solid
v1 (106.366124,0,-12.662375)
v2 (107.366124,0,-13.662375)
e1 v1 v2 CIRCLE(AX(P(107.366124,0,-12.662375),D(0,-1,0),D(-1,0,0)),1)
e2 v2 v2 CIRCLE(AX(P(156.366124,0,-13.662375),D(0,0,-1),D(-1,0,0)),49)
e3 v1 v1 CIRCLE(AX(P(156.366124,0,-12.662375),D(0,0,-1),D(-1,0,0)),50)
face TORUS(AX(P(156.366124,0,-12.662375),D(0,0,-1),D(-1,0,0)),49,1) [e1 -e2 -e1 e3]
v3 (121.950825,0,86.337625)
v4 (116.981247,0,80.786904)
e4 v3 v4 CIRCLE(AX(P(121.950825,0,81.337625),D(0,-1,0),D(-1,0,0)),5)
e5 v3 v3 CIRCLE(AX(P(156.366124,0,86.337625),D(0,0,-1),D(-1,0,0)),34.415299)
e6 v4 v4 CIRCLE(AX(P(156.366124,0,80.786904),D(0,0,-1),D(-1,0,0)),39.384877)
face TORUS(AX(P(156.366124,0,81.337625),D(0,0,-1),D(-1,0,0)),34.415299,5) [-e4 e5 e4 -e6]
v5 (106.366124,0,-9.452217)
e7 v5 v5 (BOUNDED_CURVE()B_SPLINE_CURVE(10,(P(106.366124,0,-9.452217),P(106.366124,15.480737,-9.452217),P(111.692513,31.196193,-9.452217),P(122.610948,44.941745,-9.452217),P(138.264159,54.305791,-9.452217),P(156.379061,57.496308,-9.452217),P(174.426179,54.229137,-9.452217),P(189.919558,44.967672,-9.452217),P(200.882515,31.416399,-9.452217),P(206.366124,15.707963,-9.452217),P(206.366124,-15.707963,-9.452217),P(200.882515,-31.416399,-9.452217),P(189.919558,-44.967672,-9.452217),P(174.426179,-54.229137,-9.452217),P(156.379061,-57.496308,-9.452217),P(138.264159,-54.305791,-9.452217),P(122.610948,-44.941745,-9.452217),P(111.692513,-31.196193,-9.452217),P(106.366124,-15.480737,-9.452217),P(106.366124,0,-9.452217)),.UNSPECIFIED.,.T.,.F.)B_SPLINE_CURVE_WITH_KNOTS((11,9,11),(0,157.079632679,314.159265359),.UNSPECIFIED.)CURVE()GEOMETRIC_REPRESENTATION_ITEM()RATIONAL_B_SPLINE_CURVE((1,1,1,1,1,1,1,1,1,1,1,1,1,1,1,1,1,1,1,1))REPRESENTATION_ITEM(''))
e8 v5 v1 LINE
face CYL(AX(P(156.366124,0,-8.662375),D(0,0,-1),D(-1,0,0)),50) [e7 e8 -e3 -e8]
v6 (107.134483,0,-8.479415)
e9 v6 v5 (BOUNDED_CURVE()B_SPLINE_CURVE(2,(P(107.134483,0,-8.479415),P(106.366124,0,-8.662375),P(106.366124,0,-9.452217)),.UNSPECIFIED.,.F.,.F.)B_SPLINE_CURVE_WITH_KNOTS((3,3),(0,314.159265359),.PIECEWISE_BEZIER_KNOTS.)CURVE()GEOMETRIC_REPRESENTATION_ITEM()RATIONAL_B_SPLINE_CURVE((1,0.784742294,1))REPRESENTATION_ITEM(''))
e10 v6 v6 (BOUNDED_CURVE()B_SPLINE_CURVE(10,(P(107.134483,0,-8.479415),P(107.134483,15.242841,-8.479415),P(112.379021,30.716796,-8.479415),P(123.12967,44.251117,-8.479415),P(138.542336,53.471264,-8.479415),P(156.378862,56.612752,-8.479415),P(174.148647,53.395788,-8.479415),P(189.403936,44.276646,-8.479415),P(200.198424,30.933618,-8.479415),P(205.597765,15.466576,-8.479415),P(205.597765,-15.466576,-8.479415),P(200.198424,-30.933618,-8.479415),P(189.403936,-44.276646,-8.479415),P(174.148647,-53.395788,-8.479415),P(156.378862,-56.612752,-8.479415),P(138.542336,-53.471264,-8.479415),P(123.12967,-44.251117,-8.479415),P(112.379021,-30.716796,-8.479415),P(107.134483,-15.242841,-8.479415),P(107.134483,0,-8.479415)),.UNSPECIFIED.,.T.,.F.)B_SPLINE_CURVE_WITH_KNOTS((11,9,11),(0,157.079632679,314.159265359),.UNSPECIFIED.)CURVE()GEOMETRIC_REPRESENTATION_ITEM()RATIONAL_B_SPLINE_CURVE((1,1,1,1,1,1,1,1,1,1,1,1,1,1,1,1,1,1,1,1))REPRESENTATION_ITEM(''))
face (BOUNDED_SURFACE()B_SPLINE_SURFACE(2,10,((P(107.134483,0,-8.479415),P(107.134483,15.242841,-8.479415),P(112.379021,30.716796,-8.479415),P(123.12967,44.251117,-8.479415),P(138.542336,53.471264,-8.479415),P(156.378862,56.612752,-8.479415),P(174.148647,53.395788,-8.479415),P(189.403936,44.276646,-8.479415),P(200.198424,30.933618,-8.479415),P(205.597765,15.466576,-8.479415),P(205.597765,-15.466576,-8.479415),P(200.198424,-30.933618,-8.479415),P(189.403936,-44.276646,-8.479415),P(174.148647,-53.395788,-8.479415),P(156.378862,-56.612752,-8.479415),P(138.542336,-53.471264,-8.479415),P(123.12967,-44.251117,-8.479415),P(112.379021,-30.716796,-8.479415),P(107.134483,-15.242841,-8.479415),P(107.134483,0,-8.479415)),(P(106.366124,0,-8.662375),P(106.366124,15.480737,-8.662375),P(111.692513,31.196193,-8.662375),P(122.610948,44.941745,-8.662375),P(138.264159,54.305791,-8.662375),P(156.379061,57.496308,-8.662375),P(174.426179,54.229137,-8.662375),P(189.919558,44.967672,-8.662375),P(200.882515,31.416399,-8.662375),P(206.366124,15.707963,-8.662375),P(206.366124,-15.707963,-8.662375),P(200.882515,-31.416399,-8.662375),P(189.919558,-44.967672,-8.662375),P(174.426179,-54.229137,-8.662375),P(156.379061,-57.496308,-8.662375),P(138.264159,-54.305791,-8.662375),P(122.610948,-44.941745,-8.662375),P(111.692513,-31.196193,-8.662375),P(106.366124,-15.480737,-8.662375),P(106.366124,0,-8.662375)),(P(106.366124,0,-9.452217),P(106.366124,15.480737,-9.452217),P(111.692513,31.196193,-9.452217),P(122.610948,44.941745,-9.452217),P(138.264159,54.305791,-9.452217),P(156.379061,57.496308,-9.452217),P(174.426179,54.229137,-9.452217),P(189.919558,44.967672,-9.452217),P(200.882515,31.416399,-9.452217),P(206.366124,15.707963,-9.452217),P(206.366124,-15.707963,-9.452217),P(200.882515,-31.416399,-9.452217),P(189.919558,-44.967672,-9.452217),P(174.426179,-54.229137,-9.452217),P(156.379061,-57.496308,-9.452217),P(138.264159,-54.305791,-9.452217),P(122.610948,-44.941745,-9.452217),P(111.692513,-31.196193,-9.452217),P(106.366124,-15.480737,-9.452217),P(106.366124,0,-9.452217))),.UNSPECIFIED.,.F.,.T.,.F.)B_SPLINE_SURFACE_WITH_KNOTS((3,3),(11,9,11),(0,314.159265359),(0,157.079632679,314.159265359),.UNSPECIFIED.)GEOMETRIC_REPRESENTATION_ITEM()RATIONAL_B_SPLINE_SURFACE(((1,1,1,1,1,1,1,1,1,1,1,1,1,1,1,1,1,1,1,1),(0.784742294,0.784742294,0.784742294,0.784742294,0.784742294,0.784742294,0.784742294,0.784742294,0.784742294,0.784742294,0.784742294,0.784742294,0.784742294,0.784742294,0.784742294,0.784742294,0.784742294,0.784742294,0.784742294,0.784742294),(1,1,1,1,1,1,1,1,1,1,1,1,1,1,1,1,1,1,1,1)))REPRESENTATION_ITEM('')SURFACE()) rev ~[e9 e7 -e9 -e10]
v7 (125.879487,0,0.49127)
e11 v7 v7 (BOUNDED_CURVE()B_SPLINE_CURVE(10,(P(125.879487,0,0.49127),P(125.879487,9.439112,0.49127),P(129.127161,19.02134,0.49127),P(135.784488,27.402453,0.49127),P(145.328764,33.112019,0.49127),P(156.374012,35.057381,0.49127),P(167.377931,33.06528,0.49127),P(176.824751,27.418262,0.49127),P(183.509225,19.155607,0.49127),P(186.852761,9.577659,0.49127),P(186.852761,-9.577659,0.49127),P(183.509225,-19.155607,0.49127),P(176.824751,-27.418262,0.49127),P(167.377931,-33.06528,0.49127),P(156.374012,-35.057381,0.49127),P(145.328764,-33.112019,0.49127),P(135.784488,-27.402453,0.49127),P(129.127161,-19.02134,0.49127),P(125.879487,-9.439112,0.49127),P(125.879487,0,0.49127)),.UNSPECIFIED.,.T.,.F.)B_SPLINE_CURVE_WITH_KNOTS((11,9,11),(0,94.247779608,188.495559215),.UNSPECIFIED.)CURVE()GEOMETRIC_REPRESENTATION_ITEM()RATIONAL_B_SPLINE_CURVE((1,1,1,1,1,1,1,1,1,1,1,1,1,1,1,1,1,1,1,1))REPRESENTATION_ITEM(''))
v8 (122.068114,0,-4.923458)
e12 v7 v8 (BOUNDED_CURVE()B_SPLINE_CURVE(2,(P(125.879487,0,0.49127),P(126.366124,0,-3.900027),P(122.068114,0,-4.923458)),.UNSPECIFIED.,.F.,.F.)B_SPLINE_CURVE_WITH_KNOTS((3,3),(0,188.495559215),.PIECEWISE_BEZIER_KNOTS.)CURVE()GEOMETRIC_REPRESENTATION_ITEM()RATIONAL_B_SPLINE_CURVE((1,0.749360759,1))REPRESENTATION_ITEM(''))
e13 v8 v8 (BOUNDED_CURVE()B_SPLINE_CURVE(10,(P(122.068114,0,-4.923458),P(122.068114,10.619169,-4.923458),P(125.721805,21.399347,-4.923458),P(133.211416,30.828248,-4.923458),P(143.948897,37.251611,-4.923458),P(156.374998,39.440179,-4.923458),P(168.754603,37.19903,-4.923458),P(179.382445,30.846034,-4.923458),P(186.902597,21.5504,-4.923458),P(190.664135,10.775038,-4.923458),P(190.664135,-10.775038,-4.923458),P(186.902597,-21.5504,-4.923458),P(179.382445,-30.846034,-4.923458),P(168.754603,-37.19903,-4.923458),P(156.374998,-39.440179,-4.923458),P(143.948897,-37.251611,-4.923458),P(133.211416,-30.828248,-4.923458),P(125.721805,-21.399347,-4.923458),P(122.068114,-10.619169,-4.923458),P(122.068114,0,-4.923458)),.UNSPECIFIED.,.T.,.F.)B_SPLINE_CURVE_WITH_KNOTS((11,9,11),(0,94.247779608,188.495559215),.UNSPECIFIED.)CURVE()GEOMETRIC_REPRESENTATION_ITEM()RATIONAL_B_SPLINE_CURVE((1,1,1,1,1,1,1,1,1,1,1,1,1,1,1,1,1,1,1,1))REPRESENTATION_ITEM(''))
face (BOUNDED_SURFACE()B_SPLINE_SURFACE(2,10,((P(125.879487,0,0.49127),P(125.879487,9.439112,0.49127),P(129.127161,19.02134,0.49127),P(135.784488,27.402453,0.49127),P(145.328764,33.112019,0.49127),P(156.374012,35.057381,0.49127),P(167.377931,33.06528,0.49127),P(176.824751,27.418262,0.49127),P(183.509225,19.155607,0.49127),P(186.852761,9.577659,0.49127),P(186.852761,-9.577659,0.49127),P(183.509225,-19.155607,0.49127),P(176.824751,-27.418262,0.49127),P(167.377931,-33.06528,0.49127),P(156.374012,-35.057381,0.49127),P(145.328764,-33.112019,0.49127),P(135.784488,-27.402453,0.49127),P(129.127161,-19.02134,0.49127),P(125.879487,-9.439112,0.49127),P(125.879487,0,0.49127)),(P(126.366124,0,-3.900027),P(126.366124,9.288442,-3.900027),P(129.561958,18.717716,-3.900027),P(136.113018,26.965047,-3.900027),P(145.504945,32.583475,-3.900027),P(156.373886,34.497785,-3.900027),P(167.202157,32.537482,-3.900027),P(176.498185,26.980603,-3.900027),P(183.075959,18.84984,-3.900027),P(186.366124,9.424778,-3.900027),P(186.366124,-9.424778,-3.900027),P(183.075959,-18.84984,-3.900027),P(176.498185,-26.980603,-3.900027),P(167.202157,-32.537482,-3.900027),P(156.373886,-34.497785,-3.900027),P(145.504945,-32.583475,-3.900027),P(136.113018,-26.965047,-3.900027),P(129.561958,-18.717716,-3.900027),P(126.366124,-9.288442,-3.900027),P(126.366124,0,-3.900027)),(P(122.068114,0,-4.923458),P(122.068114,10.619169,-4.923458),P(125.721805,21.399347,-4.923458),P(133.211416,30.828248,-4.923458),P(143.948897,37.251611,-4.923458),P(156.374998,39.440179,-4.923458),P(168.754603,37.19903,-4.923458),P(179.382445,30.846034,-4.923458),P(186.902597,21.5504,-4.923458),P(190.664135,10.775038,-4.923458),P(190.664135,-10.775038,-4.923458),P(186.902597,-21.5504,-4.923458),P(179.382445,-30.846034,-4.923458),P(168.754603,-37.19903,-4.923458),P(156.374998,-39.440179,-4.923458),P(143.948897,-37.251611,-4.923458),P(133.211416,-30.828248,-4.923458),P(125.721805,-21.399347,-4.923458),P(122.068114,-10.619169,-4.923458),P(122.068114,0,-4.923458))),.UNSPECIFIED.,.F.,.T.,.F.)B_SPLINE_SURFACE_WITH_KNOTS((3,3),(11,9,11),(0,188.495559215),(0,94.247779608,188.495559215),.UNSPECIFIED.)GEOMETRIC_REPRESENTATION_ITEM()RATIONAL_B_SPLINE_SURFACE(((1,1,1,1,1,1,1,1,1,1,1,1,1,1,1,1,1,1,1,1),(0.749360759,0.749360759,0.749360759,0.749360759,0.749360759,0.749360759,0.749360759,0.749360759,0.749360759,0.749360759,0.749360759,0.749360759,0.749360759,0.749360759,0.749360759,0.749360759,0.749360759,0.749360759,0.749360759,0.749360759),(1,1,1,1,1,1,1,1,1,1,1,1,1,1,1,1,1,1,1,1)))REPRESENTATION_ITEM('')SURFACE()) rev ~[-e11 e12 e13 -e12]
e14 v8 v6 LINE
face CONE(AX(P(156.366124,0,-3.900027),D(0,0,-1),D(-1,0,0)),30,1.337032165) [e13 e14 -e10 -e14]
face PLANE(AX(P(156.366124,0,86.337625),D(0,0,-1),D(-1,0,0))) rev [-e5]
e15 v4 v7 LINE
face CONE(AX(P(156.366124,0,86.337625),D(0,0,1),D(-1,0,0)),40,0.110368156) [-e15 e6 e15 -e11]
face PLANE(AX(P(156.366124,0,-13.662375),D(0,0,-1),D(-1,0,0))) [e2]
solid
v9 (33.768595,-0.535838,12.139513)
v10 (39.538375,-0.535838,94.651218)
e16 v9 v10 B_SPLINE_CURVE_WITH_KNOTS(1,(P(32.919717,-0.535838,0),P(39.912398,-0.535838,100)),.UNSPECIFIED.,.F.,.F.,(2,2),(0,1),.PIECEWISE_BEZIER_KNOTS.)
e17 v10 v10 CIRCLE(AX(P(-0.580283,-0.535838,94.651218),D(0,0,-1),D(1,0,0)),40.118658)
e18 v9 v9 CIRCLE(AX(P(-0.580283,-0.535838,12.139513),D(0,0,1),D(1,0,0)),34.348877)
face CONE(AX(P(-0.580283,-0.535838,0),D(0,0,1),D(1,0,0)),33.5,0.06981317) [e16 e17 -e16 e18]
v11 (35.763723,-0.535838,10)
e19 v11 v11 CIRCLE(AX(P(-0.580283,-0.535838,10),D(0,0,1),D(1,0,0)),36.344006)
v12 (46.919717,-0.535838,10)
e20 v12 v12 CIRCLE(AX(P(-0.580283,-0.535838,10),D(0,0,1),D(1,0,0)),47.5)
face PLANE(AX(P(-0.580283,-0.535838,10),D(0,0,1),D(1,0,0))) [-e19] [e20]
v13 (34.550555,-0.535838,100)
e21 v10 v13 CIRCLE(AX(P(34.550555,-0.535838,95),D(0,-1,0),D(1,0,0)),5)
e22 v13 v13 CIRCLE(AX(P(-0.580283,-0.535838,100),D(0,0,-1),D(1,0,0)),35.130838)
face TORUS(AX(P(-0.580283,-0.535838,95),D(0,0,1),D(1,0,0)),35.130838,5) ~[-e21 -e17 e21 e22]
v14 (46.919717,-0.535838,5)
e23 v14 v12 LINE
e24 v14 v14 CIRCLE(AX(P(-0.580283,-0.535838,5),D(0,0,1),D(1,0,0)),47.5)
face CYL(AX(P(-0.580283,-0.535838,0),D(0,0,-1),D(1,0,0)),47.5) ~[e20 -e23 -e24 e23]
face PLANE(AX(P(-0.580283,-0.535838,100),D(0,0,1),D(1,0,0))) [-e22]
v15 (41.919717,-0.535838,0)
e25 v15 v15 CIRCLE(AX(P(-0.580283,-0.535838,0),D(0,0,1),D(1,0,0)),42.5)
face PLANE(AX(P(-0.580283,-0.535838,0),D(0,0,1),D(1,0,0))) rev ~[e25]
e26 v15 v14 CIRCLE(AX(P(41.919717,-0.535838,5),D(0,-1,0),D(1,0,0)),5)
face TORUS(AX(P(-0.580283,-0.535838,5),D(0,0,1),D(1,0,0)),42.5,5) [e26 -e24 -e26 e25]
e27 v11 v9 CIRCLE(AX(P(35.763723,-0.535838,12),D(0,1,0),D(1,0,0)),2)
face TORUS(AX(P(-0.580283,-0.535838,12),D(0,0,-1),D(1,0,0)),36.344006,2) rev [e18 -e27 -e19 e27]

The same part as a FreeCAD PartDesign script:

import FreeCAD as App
import Part
import Sketcher

V = App.Vector
Q = App.Units.Quantity


def edges_at(feature, points):
    """Names of the edges that pass closest to the given points."""
    edges = feature.Shape.Edges
    near = lambda p: min(range(len(edges)), key=lambda i: edges[i].distToShape(Part.Vertex(*p))[0])
    return sorted({f"Edge{near(p) + 1}" for p in points})


def add_polygon(sketch, points):
    """Adds a closed chain of lines whose ends are joined by coincident constraints."""
    first, n = sketch.GeometryCount, len(points)
    for a, b in zip(points, points[1:] + points[:1]):
        sketch.addGeometry(Part.LineSegment(App.Vector(*a, 0), App.Vector(*b, 0)), False)
    for i in range(n):
        sketch.addConstraint(Sketcher.Constraint("Coincident", first + i, 2, first + (i + 1) % n, 1))

doc = App.newDocument("Part")
body = doc.addObject("PartDesign::Body", "Body")

sketch1 = body.newObject("Sketcher::SketchObject", "Sketch")
sketch1.AttachmentSupport = (doc.getObject("XY_Plane"), [""])
sketch1.MapMode = "FlatFace"
sketch1.addGeometry(Part.Circle(V(-1, -1, 0), V(0, 0, 1), 48), False)
sketch1.addConstraint(Sketcher.Constraint("Diameter", 0, Q("95 mm")))
sketch1.addConstraint(Sketcher.Constraint("DistanceY", 0, 3, -1, 1, Q("0.535838 mm")))
sketch1.addConstraint(Sketcher.Constraint("DistanceX", 0, 3, -1, 1, Q("0.580283 mm")))
pad1 = body.newObject("PartDesign::Pad", "Pad")
pad1.Profile = sketch1
pad1.Length = 10

sketch2 = body.newObject("Sketcher::SketchObject", "Sketch001")
sketch2.AttachmentSupport = (doc.getObject("XY_Plane"), [""])
sketch2.MapMode = "FlatFace"
sketch2.addGeometry(Part.Circle(V(-1, -1, 0), V(0, 0, 1), 34), False)
sketch2.addConstraint(Sketcher.Constraint("Diameter", 0, Q("67 mm")))
sketch2.addConstraint(Sketcher.Constraint("DistanceY", 0, 3, -1, 1, Q("0.535838 mm")))
sketch2.addConstraint(Sketcher.Constraint("DistanceX", 0, 3, -1, 1, Q("0.580283 mm")))
pad2 = body.newObject("PartDesign::Pad", "Pad001")
pad2.Profile = sketch2
pad2.Length = 100
pad2.TaperAngle = 4
doc.recompute()

fillet = body.newObject("PartDesign::Fillet", "Fillet")
fillet.Base = (pad2, edges_at(pad2, [(-48.08, -0.536, 0)]))
fillet.Radius = 5
doc.recompute()

fillet2 = body.newObject("PartDesign::Fillet", "Fillet001")
fillet2.Base = (fillet, edges_at(fillet, [(-34.78, -0.536, 10)]))
fillet2.Radius = 2
doc.recompute()

fillet3 = body.newObject("PartDesign::Fillet", "Fillet002")
fillet3.Base = (fillet2, edges_at(fillet2, [(-41.073, -0.536, 100)]))
fillet3.Radius = 5
body2 = doc.addObject("PartDesign::Body", "Body001")

sketch3 = body2.newObject("Sketcher::SketchObject", "Sketch002")
sketch3.AttachmentSupport = (doc.getObject("XZ_Plane001"), [""])
sketch3.MapMode = "FlatFace"
add_polygon(sketch3, [(156, -14), (156, 86), (116, 86), (126, -4), (106, -9), (106, -14)])
sketch3.addGeometry(Part.LineSegment(V(156, 86, 0), V(156, -14, 0)), True)
sketch3.addConstraint(Sketcher.Constraint("Vertical", 0))
sketch3.addConstraint(Sketcher.Constraint("Horizontal", 1))
sketch3.addConstraint(Sketcher.Constraint("Vertical", 4))
sketch3.addConstraint(Sketcher.Constraint("Horizontal", 5))
sketch3.addConstraint(Sketcher.Constraint("Vertical", 6))
sketch3.addConstraint(Sketcher.Constraint("Coincident", 6, 1, 0, 2))
sketch3.addConstraint(Sketcher.Constraint("Horizontal", 4, 2, 6, 2))
sketch3.addConstraint(Sketcher.Constraint("DistanceX", 1, 2, 1, 1, Q("40 mm")))
sketch3.addConstraint(Sketcher.Constraint("DistanceX", 5, 1, 5, 2, Q("50 mm")))
sketch3.addConstraint(Sketcher.Constraint("DistanceY", 0, 1, 0, 2, Q("100 mm")))
sketch3.addConstraint(Sketcher.Constraint("DistanceY", 4, 2, 4, 1, Q("5 mm")))
sketch3.addConstraint(Sketcher.Constraint("DistanceX", 1, 2, 2, 2, Q("10 mm")))
sketch3.addConstraint(Sketcher.Constraint("Distance", 3, Q("20.559182 mm")))
sketch3.addConstraint(Sketcher.Constraint("DistanceX", -1, 1, 0, 2, Q("156.366124 mm")))
sketch3.addConstraint(Sketcher.Constraint("DistanceY", -1, 1, 0, 2, Q("86.337625 mm")))
revolution = body2.newObject("PartDesign::Revolution", "Revolution")
revolution.Profile = sketch3
revolution.ReferenceAxis = (sketch3, ["Axis0"])
revolution.Angle = 360
doc.recompute()

fillet4 = body2.newObject("PartDesign::Fillet", "Fillet003")
fillet4.Base = (revolution, edges_at(revolution, [(196.366, 0, 86.338), (186.366, 0, -3.9)]))
fillet4.Radius = 5
doc.recompute()

fillet5 = body2.newObject("PartDesign::Fillet", "Fillet004")
fillet5.Base = (fillet4, edges_at(fillet4, [(206.366, 0, -8.662), (206.366, 0, -13.662), (106.366, 0, -11.162)]))
fillet5.Radius = 1

doc.recompute()
